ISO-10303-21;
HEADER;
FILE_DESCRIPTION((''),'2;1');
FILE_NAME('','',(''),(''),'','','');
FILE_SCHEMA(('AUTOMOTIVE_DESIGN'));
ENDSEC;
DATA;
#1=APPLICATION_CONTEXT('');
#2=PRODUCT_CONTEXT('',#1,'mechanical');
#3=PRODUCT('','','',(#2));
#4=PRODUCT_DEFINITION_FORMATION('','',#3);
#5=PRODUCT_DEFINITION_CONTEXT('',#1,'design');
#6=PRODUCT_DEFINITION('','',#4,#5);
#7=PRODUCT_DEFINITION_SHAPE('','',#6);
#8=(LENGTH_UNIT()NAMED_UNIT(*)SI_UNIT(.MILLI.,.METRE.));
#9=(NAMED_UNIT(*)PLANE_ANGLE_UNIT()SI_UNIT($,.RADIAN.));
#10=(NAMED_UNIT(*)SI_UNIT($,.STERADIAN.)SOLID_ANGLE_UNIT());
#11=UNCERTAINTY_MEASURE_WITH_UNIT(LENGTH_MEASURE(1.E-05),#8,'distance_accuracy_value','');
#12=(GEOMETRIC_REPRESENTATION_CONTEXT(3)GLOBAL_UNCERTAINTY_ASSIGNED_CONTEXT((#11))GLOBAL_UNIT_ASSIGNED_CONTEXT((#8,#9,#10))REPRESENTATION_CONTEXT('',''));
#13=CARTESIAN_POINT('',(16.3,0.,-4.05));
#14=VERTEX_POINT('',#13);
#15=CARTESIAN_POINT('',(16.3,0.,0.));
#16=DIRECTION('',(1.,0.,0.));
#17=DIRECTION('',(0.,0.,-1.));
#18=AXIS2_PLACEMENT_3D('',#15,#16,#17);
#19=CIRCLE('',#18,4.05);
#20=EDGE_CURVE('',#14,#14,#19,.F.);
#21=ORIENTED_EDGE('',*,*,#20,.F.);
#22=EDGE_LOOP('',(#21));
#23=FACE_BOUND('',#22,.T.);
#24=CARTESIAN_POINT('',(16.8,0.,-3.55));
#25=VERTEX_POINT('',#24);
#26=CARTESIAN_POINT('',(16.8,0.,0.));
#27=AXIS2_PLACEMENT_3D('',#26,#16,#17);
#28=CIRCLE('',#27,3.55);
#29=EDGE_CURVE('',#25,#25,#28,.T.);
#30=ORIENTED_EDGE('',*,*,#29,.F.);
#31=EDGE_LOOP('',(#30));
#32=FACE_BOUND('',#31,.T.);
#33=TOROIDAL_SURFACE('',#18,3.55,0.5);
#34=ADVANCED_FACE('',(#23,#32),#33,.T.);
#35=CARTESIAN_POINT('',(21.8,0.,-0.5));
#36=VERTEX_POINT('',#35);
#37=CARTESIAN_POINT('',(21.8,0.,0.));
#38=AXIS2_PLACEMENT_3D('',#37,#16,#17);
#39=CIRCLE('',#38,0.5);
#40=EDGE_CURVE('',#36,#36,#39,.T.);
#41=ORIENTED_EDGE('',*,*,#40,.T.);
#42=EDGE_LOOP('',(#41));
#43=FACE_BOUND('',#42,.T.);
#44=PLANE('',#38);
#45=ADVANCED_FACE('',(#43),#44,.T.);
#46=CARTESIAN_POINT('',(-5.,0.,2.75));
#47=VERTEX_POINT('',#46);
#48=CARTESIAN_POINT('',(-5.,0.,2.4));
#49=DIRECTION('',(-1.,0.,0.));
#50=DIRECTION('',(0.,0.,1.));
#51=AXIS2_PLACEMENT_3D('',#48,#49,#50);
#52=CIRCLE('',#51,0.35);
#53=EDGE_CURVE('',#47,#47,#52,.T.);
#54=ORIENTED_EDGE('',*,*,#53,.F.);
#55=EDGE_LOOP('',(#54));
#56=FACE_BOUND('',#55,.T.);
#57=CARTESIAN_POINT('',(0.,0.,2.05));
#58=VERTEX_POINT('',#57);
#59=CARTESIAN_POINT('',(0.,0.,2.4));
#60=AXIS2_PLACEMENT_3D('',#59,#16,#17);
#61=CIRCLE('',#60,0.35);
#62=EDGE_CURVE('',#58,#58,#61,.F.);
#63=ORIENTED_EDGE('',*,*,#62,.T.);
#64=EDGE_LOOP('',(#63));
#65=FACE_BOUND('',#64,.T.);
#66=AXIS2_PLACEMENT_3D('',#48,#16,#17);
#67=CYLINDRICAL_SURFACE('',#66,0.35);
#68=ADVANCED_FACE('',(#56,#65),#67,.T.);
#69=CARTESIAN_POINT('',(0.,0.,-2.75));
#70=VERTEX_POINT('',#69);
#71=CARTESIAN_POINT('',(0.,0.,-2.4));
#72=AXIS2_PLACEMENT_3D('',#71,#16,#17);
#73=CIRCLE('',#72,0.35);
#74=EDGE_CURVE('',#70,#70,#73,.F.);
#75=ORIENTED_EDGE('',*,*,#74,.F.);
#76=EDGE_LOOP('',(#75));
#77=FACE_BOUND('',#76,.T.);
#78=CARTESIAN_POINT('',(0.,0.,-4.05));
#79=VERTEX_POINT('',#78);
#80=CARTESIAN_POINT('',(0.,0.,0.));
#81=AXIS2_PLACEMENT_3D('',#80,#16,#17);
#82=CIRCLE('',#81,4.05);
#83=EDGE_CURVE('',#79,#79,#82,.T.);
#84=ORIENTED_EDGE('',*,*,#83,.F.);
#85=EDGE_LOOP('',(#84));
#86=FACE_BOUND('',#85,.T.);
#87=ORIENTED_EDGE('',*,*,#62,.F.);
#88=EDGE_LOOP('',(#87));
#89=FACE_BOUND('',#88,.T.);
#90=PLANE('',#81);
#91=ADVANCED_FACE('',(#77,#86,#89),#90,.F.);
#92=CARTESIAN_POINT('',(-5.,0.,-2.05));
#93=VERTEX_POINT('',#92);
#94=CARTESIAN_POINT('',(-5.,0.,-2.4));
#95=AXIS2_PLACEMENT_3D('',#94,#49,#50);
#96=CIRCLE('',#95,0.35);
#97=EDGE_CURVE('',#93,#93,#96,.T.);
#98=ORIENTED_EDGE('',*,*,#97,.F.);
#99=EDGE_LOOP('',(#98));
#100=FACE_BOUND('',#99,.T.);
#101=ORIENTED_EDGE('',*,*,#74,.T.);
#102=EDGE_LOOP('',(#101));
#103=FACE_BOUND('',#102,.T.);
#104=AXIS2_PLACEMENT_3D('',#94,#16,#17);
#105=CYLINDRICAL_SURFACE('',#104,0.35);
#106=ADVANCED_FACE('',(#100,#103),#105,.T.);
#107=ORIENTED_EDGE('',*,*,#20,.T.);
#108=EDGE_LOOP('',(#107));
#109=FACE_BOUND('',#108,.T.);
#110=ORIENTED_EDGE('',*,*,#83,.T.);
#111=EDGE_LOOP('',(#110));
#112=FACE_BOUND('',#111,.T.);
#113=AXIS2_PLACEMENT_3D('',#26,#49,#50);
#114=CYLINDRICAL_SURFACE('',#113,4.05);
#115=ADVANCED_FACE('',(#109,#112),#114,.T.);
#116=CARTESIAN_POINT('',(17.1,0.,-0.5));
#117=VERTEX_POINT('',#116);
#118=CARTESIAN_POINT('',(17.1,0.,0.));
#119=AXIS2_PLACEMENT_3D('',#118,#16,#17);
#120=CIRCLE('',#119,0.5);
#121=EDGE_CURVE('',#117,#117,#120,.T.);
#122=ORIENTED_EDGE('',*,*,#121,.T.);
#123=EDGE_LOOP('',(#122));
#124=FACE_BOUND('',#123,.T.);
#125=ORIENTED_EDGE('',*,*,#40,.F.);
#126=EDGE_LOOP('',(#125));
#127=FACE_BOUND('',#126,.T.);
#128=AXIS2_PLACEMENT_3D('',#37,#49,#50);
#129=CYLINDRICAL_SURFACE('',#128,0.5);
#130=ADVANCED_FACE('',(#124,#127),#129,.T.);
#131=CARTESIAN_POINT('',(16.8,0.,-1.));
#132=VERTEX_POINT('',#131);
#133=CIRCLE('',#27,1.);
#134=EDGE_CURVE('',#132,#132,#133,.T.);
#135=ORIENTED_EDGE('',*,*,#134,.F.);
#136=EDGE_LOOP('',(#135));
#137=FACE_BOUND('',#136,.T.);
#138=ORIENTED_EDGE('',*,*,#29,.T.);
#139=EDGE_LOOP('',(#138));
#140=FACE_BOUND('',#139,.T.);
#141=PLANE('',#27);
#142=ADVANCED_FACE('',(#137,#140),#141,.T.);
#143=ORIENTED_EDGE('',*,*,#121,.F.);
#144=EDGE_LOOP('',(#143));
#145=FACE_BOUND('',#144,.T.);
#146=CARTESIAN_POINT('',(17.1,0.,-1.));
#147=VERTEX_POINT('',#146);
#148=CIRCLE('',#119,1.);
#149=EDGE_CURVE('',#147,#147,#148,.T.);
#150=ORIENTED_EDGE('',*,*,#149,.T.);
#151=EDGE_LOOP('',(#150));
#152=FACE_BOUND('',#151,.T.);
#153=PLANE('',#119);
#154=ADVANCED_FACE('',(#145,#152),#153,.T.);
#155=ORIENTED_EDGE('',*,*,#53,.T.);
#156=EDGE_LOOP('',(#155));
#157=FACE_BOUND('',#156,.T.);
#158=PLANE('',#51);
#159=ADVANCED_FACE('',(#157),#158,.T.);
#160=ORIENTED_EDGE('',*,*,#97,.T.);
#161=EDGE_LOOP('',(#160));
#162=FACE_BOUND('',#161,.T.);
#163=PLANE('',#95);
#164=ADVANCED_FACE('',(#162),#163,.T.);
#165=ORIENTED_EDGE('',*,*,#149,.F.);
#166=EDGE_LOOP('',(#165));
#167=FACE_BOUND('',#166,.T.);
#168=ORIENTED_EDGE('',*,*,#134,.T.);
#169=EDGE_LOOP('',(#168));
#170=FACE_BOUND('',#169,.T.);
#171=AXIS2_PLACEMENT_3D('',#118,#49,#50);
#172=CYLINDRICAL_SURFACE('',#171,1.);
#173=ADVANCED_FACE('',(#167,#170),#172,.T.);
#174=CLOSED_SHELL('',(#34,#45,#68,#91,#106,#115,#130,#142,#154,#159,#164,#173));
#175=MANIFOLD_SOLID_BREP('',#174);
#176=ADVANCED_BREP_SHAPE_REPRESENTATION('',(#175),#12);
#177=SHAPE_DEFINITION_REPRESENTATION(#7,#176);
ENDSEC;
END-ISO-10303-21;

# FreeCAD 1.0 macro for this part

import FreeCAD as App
import Part
import Sketcher
from FreeCAD import Vector


def edges_at(feature, points):
    """Names of the edges that pass closest to the given points."""
    edges = feature.Shape.Edges
    near = lambda p: min(range(len(edges)), key=lambda i: edges[i].distToShape(Part.Vertex(*p))[0])
    return sorted({f"Edge{near(p) + 1}" for p in points})

doc = App.newDocument("Part")
params = doc.addObject("Spreadsheet::Sheet", "Params")
for row, (alias, value) in enumerate([
    ("sketch1_diameter", "8.1 mm"),
    ("pad1_length", "16.8 mm"),
    ("sketch2_diameter", "2 mm"),
    ("pad2_length", "0.3 mm"),
    ("sketch3_diameter", "1 mm"),
    ("pad3_length", "4.7 mm"),
    ("sketch4_diameter", "0.7 mm"),
    ("pad4_length", "5 mm"),
    ("fillet_radius", "0.5 mm"),
], start=1):
    params.set(f"A{row}", alias)
    params.set(f"B{row}", "=" + value)
    params.setAlias(f"B{row}", alias)

body = doc.addObject("PartDesign::Body", "Body")

sketch1 = body.newObject("Sketcher::SketchObject", "Sketch")
sketch1.AttachmentSupport = (doc.getObject("YZ_Plane"), [""])
sketch1.MapMode = "FlatFace"
sketch1.addGeometry(Part.Circle(Vector(0, 0, 0), Vector(0, 0, 1), 4), False)
sketch1.addConstraint(Sketcher.Constraint("Coincident", 0, 3, -1, 1))
sketch1.addConstraint(Sketcher.Constraint("Diameter", 0, 8.1))
sketch1.setExpression("Constraints[1]", "Params.sketch1_diameter")
pad1 = body.newObject("PartDesign::Pad", "Pad")
pad1.Profile = sketch1
pad1.setExpression("Length", "Params.pad1_length")

sketch2 = body.newObject("Sketcher::SketchObject", "Sketch001")
sketch2.AttachmentSupport = (doc.getObject("YZ_Plane"), [""])
sketch2.MapMode = "FlatFace"
sketch2.AttachmentOffset = App.Placement(Vector(0, 0, 16.8), App.Rotation())
sketch2.addGeometry(Part.Circle(Vector(0, 0, 0), Vector(0, 0, 1), 1), False)
sketch2.addConstraint(Sketcher.Constraint("Coincident", 0, 3, -1, 1))
sketch2.addConstraint(Sketcher.Constraint("Diameter", 0, 2.0))
sketch2.setExpression("Constraints[1]", "Params.sketch2_diameter")
pad2 = body.newObject("PartDesign::Pad", "Pad001")
pad2.Profile = sketch2
pad2.setExpression("Length", "Params.pad2_length")

sketch3 = body.newObject("Sketcher::SketchObject", "Sketch002")
sketch3.AttachmentSupport = (doc.getObject("YZ_Plane"), [""])
sketch3.MapMode = "FlatFace"
sketch3.AttachmentOffset = App.Placement(Vector(0, 0, 17.1), App.Rotation())
sketch3.addGeometry(Part.Circle(Vector(0, 0, 0), Vector(0, 0, 1), 0.5), False)
sketch3.addConstraint(Sketcher.Constraint("Coincident", 0, 3, -1, 1))
sketch3.addConstraint(Sketcher.Constraint("Diameter", 0, 1.0))
sketch3.setExpression("Constraints[1]", "Params.sketch3_diameter")
pad3 = body.newObject("PartDesign::Pad", "Pad002")
pad3.Profile = sketch3
pad3.setExpression("Length", "Params.pad3_length")

sketch4 = body.newObject("Sketcher::SketchObject", "Sketch003")
sketch4.AttachmentSupport = (doc.getObject("YZ_Plane"), [""])
sketch4.MapMode = "FlatFace"
sketch4.addGeometry(Part.Circle(Vector(0, 2.4, 0), Vector(0, 0, 1), 0.35), False)
sketch4.addGeometry(Part.Circle(Vector(0, -2.4, 0), Vector(0, 0, 1), 0.35), False)
sketch4.addConstraint(Sketcher.Constraint("Equal", 0, 1))
sketch4.addConstraint(Sketcher.Constraint("Symmetric", 0, 3, 1, 3, -1, 1))
sketch4.addConstraint(Sketcher.Constraint("PointOnObject", 0, 3, -2))
sketch4.addConstraint(Sketcher.Constraint("Diameter", 0, 0.7))
sketch4.addConstraint(Sketcher.Constraint("DistanceY", -1, 1, 0, 3, 2.4))
sketch4.setExpression("Constraints[3]", "Params.sketch4_diameter")
pad4 = body.newObject("PartDesign::Pad", "Pad003")
pad4.Profile = sketch4
pad4.setExpression("Length", "Params.pad4_length")
pad4.Reversed = True
doc.recompute()

fillet = body.newObject("PartDesign::Fillet", "Fillet")
fillet.Base = (pad4, edges_at(pad4, [(16.8, 0, 4.05)]))
fillet.setExpression("Radius", "Params.fillet_radius")

doc.recompute()
